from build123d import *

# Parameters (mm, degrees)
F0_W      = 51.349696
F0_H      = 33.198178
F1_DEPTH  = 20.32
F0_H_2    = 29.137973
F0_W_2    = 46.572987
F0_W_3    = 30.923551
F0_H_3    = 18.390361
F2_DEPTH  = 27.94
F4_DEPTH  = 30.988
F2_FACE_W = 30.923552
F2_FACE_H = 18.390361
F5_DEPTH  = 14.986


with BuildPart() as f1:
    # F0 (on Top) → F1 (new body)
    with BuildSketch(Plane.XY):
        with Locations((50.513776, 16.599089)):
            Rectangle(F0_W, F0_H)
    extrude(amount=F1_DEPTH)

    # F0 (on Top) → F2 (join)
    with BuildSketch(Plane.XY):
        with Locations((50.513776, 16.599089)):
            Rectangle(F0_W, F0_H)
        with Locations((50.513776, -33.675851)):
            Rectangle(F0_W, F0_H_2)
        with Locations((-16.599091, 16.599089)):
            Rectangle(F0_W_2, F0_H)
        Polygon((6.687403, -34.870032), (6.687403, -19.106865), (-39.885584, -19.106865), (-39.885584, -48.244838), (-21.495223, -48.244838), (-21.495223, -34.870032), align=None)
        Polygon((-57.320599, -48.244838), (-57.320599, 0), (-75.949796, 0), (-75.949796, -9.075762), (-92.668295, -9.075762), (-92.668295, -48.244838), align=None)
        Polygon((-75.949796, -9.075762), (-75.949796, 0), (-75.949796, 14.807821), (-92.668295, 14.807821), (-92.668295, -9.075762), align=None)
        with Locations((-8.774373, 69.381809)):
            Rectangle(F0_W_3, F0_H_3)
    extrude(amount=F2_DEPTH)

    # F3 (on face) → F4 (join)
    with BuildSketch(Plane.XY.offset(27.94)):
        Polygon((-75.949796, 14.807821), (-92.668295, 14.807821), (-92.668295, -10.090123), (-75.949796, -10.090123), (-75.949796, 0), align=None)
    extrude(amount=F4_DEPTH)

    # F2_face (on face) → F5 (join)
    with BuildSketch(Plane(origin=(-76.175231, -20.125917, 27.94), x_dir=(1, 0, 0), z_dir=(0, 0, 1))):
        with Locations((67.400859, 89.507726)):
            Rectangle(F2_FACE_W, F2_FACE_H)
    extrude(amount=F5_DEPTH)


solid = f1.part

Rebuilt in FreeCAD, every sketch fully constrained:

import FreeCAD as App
import Part
import Sketcher

V = App.Vector
Q = App.Units.Quantity


def add_polygon(sketch, points):
    """Adds a closed chain of lines whose ends are joined by coincident constraints."""
    first, n = sketch.GeometryCount, len(points)
    for a, b in zip(points, points[1:] + points[:1]):
        sketch.addGeometry(Part.LineSegment(App.Vector(*a, 0), App.Vector(*b, 0)), False)
    for i in range(n):
        sketch.addConstraint(Sketcher.Constraint("Coincident", first + i, 2, first + (i + 1) % n, 1))

doc = App.newDocument("Part")
body = doc.addObject("PartDesign::Body", "Body")
body.AllowCompound = True

# Sketch on XY plane
sketch1 = doc.addObject("Sketcher::SketchObject", "Sketch")
body.addObject(sketch1)
sketch1.AttachmentSupport = (doc.XY_Plane, [""])
sketch1.MapMode = "FlatFace"
add_polygon(sketch1, [(25, 33), (25, 0), (76, 0), (76, 33)])  # lines 0-3
sketch1.addConstraint(Sketcher.Constraint("Vertical", 0))
sketch1.addConstraint(Sketcher.Constraint("Horizontal", 1))
sketch1.addConstraint(Sketcher.Constraint("Vertical", 2))
sketch1.addConstraint(Sketcher.Constraint("Horizontal", 3))
sketch1.addConstraint(Sketcher.Constraint("PointOnObject", 0, 2, -1))
sketch1.addConstraint(Sketcher.Constraint("DistanceX", 1, 1, 1, 2, Q("51.349696 mm")))
sketch1.addConstraint(Sketcher.Constraint("DistanceY", 0, 2, 0, 1, Q("33.198178 mm")))
sketch1.addConstraint(Sketcher.Constraint("DistanceX", -1, 1, 0, 2, Q("24.838928 mm")))
pad1 = doc.addObject("PartDesign::Pad", "Pad")
body.addObject(pad1)
pad1.Profile = sketch1
pad1.Length = Q("0.8 in")

# Sketch on XY plane
sketch2 = doc.addObject("Sketcher::SketchObject", "Sketch001")
body.addObject(sketch2)
sketch2.AttachmentSupport = (doc.XY_Plane, [""])
sketch2.MapMode = "FlatFace"
add_polygon(sketch2, [(25, 33), (25, 0), (76, 0), (76, 33)])  # lines 0-3
add_polygon(sketch2, [(25, -19), (25, -48), (76, -48), (76, -19)])  # lines 4-7
add_polygon(sketch2, [(-40, 33), (-40, 0), (7, 0), (7, 33)])  # lines 8-11
add_polygon(sketch2, [(7, -35), (7, -19), (-40, -19), (-40, -48), (-21, -48), (-21, -35)])  # lines 12-17
add_polygon(sketch2, [(-57, -48), (-57, 0), (-76, 0), (-76, 15), (-93, 15), (-93, -48)])  # lines 18-23
add_polygon(sketch2, [(-24, 79), (-24, 60), (7, 60), (7, 79)])  # lines 24-27
sketch2.addConstraint(Sketcher.Constraint("Vertical", 0))
sketch2.addConstraint(Sketcher.Constraint("Horizontal", 1))
sketch2.addConstraint(Sketcher.Constraint("Vertical", 2))
sketch2.addConstraint(Sketcher.Constraint("Horizontal", 3))
sketch2.addConstraint(Sketcher.Constraint("Vertical", 4))
sketch2.addConstraint(Sketcher.Constraint("Horizontal", 5))
sketch2.addConstraint(Sketcher.Constraint("Vertical", 6))
sketch2.addConstraint(Sketcher.Constraint("Horizontal", 7))
sketch2.addConstraint(Sketcher.Constraint("Vertical", 8))
sketch2.addConstraint(Sketcher.Constraint("Horizontal", 9))
sketch2.addConstraint(Sketcher.Constraint("Vertical", 10))
sketch2.addConstraint(Sketcher.Constraint("Horizontal", 11))
sketch2.addConstraint(Sketcher.Constraint("Vertical", 12))
sketch2.addConstraint(Sketcher.Constraint("Horizontal", 13))
sketch2.addConstraint(Sketcher.Constraint("Vertical", 14))
sketch2.addConstraint(Sketcher.Constraint("Horizontal", 15))
sketch2.addConstraint(Sketcher.Constraint("Vertical", 16))
sketch2.addConstraint(Sketcher.Constraint("Horizontal", 17))
sketch2.addConstraint(Sketcher.Constraint("Vertical", 18))
sketch2.addConstraint(Sketcher.Constraint("Horizontal", 19))
sketch2.addConstraint(Sketcher.Constraint("Vertical", 20))
sketch2.addConstraint(Sketcher.Constraint("Horizontal", 21))
sketch2.addConstraint(Sketcher.Constraint("Vertical", 22))
sketch2.addConstraint(Sketcher.Constraint("Horizontal", 23))
sketch2.addConstraint(Sketcher.Constraint("Vertical", 24))
sketch2.addConstraint(Sketcher.Constraint("Horizontal", 25))
sketch2.addConstraint(Sketcher.Constraint("Vertical", 26))
sketch2.addConstraint(Sketcher.Constraint("Horizontal", 27))
sketch2.addConstraint(Sketcher.Constraint("PointOnObject", 0, 2, -1))
sketch2.addConstraint(Sketcher.Constraint("PointOnObject", 8, 2, -1))
sketch2.addConstraint(Sketcher.Constraint("PointOnObject", 18, 2, -1))
sketch2.addConstraint(Sketcher.Constraint("Horizontal", 3, 2, 10, 2))
sketch2.addConstraint(Sketcher.Constraint("Horizontal", 7, 2, 12, 2))
sketch2.addConstraint(Sketcher.Constraint("Horizontal", 5, 2, 14, 2))
sketch2.addConstraint(Sketcher.Constraint("Horizontal", 15, 2, 22, 2))
sketch2.addConstraint(Sketcher.Constraint("Vertical", 3, 2, 4, 2))
sketch2.addConstraint(Sketcher.Constraint("Vertical", 2, 2, 5, 2))
sketch2.addConstraint(Sketcher.Constraint("Vertical", 10, 2, 12, 2))
sketch2.addConstraint(Sketcher.Constraint("Vertical", 11, 2, 13, 2))
sketch2.addConstraint(Sketcher.Constraint("Vertical", 17, 2, 25, 2))
sketch2.addConstraint(Sketcher.Constraint("Equal", 15, 24))
sketch2.addConstraint(Sketcher.Constraint("DistanceX", 21, 2, 21, 1, Q("16.718499 mm")))
sketch2.addConstraint(Sketcher.Constraint("DistanceX", 15, 1, 15, 2, Q("18.390361 mm")))
sketch2.addConstraint(Sketcher.Constraint("DistanceX", 25, 1, 25, 2, Q("30.923551 mm")))
sketch2.addConstraint(Sketcher.Constraint("DistanceY", 20, 1, 20, 2, Q("14.807821 mm")))
sketch2.addConstraint(Sketcher.Constraint("DistanceY", 22, 2, 22, 1, Q("63.052659 mm")))
sketch2.addConstraint(Sketcher.Constraint("DistanceX", 18, 2, -1, 1, Q("57.320599 mm")))
sketch2.addConstraint(Sketcher.Constraint("DistanceX", 1, 1, 1, 2, Q("51.349696 mm")))
sketch2.addConstraint(Sketcher.Constraint("DistanceX", 9, 1, 9, 2, Q("46.572987 mm")))
sketch2.addConstraint(Sketcher.Constraint("DistanceX", 19, 2, 19, 1, Q("18.629197 mm")))
sketch2.addConstraint(Sketcher.Constraint("DistanceY", 0, 2, 0, 1, Q("33.198178 mm")))
sketch2.addConstraint(Sketcher.Constraint("DistanceY", 4, 2, 4, 1, Q("29.137973 mm")))
sketch2.addConstraint(Sketcher.Constraint("DistanceY", 12, 1, 12, 2, Q("15.763167 mm")))
sketch2.addConstraint(Sketcher.Constraint("DistanceX", 24, 2, -1, 1, Q("24.236148 mm")))
sketch2.addConstraint(Sketcher.Constraint("DistanceY", -1, 1, 24, 2, Q("60.186628 mm")))
sketch2.addConstraint(Sketcher.Constraint("DistanceX", 8, 2, 1, 2, Q("116.074208 mm")))
pad2 = doc.addObject("PartDesign::Pad", "Pad001")
body.addObject(pad2)
pad2.Profile = sketch2
pad2.Length = Q("1.1 in")

# Sketch on XY plane
sketch3 = doc.addObject("Sketcher::SketchObject", "Sketch002")
body.addObject(sketch3)
sketch3.AttachmentSupport = (doc.XY_Plane, [""])
sketch3.MapMode = "FlatFace"
sketch3.AttachmentOffset = App.Placement(V(0, 0, 1.1 * 25.4), App.Rotation())
add_polygon(sketch3, [(-76, 15), (-93, 15), (-93, -10), (-76, -10)])  # lines 0-3
sketch3.addConstraint(Sketcher.Constraint("Horizontal", 0))
sketch3.addConstraint(Sketcher.Constraint("Vertical", 1))
sketch3.addConstraint(Sketcher.Constraint("Horizontal", 2))
sketch3.addConstraint(Sketcher.Constraint("Vertical", 3))
sketch3.addConstraint(Sketcher.Constraint("DistanceX", 0, 2, 0, 1, Q("16.718499 mm")))
sketch3.addConstraint(Sketcher.Constraint("DistanceY", 1, 2, 1, 1, Q("24.897944 mm")))
sketch3.addConstraint(Sketcher.Constraint("DistanceY", -1, 1, 0, 2, Q("14.807821 mm")))
sketch3.addConstraint(Sketcher.Constraint("DistanceX", 0, 2, -1, 1, Q("92.668295 mm")))
pad3 = doc.addObject("PartDesign::Pad", "Pad002")
body.addObject(pad3)
pad3.Profile = sketch3
pad3.Length = Q("1.22 in")

# Sketch on XY plane
sketch4 = doc.addObject("Sketcher::SketchObject", "Sketch003")
body.addObject(sketch4)
sketch4.AttachmentSupport = (doc.XY_Plane, [""])
sketch4.MapMode = "FlatFace"
sketch4.AttachmentOffset = App.Placement(V(0, 0, 1.1 * 25.4), App.Rotation())
add_polygon(sketch4, [(-24, 79), (-24, 60), (7, 60), (7, 79)])  # lines 0-3
sketch4.addConstraint(Sketcher.Constraint("Vertical", 0))
sketch4.addConstraint(Sketcher.Constraint("Horizontal", 1))
sketch4.addConstraint(Sketcher.Constraint("Vertical", 2))
sketch4.addConstraint(Sketcher.Constraint("Horizontal", 3))
sketch4.addConstraint(Sketcher.Constraint("DistanceY", 0, 2, 0, 1, Q("18.390361 mm")))
sketch4.addConstraint(Sketcher.Constraint("DistanceX", 1, 1, 1, 2, Q("30.923552 mm")))
sketch4.addConstraint(Sketcher.Constraint("DistanceX", 0, 2, -1, 1, Q("24.236148 mm")))
sketch4.addConstraint(Sketcher.Constraint("DistanceY", -1, 1, 0, 2, Q("60.186628 mm")))
pad4 = doc.addObject("PartDesign::Pad", "Pad003")
body.addObject(pad4)
pad4.Profile = sketch4
pad4.Length = Q("0.59 in")

doc.recompute()
